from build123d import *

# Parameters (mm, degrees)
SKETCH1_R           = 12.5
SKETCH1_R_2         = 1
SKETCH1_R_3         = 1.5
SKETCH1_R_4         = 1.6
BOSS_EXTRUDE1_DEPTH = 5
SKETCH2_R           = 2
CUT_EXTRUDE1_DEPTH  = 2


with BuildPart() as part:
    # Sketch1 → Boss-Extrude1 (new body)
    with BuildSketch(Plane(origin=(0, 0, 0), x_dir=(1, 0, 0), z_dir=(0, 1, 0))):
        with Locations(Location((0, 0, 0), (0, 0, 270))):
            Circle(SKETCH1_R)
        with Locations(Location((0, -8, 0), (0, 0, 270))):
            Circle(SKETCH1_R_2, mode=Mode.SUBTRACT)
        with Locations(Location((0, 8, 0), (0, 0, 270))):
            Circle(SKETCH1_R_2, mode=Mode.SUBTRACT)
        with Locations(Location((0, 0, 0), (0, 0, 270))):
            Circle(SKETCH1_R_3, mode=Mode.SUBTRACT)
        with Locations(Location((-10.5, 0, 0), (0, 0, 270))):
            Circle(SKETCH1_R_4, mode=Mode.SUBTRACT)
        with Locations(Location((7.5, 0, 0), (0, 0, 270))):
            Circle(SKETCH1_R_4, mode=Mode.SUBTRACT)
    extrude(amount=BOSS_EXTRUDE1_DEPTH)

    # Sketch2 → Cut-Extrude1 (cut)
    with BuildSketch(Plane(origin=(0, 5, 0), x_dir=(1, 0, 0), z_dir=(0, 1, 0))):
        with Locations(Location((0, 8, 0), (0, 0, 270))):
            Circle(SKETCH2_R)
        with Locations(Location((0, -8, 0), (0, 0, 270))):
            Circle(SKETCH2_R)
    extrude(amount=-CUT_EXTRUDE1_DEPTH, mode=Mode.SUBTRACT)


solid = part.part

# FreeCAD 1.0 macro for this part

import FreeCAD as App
import Part
import Sketcher

V = App.Vector

doc = App.newDocument("Part")
body = doc.addObject("PartDesign::Body", "Body")

# Sketch on XZ plane
sketch1 = body.newObject("Sketcher::SketchObject", "Sketch")
sketch1.AttachmentSupport = (doc.getObject("XZ_Plane"), [""])
sketch1.MapMode = "FlatFace"
sketch1.addGeometry(Part.Circle(V(0, 0, 0), V(0, 0, 1), 12.5), False)
sketch1.addGeometry(Part.Circle(V(-10.5, 0, 0), V(0, 0, 1), 1.6), False)
sketch1.addGeometry(Part.Circle(V(0, -8, 0), V(0, 0, 1), 1), False)
sketch1.addGeometry(Part.Circle(V(7.5, 0, 0), V(0, 0, 1), 1.6), False)
sketch1.addGeometry(Part.Circle(V(0, 0, 0), V(0, 0, 1), 1.5), False)
sketch1.addGeometry(Part.Circle(V(0, 8, 0), V(0, 0, 1), 1), False)
sketch1.addConstraint(Sketcher.Constraint("Coincident", 0, 3, -1, 1))
sketch1.addConstraint(Sketcher.Constraint("Coincident", 4, 3, -1, 1))
sketch1.addConstraint(Sketcher.Constraint("Equal", 1, 3))
sketch1.addConstraint(Sketcher.Constraint("Equal", 2, 5))
sketch1.addConstraint(Sketcher.Constraint("Symmetric", 2, 3, 5, 3, -1, 1))
sketch1.addConstraint(Sketcher.Constraint("PointOnObject", 1, 3, -1))
sketch1.addConstraint(Sketcher.Constraint("PointOnObject", 2, 3, -2))
sketch1.addConstraint(Sketcher.Constraint("PointOnObject", 3, 3, -1))
sketch1.addConstraint(Sketcher.Constraint("Diameter", 0, 25.0))
sketch1.addConstraint(Sketcher.Constraint("Diameter", 2, 2.0))
sketch1.addConstraint(Sketcher.Constraint("Diameter", 4, 3.0))
sketch1.addConstraint(Sketcher.Constraint("Diameter", 1, 3.2))
sketch1.addConstraint(Sketcher.Constraint("DistanceY", 2, 3, -1, 1, 8.0))
sketch1.addConstraint(Sketcher.Constraint("DistanceX", 1, 3, 3, 3, 18.0))
sketch1.addConstraint(Sketcher.Constraint("DistanceX", 1, 3, -1, 1, 10.5))
pad1 = body.newObject("PartDesign::Pad", "Pad")
pad1.Profile = sketch1
pad1.Length = 5
pad1.Reversed = True

# Sketch on XZ plane
sketch2 = body.newObject("Sketcher::SketchObject", "Sketch001")
sketch2.AttachmentSupport = (doc.getObject("XZ_Plane"), [""])
sketch2.MapMode = "FlatFace"
sketch2.AttachmentOffset = App.Placement(V(0, 0, -5), App.Rotation())
sketch2.addGeometry(Part.Circle(V(0, -8, 0), V(0, 0, 1), 2), False)
sketch2.addGeometry(Part.Circle(V(0, 8, 0), V(0, 0, 1), 2), False)
sketch2.addConstraint(Sketcher.Constraint("Equal", 0, 1))
sketch2.addConstraint(Sketcher.Constraint("Symmetric", 0, 3, 1, 3, -1, 1))
sketch2.addConstraint(Sketcher.Constraint("PointOnObject", 0, 3, -2))
sketch2.addConstraint(Sketcher.Constraint("Diameter", 0, 4.0))
sketch2.addConstraint(Sketcher.Constraint("DistanceY", 0, 3, -1, 1, 8.0))
pocket1 = body.newObject("PartDesign::Pocket", "Pocket")
pocket1.Profile = sketch2
pocket1.Length = 2
pocket1.Reversed = True

doc.recompute()
